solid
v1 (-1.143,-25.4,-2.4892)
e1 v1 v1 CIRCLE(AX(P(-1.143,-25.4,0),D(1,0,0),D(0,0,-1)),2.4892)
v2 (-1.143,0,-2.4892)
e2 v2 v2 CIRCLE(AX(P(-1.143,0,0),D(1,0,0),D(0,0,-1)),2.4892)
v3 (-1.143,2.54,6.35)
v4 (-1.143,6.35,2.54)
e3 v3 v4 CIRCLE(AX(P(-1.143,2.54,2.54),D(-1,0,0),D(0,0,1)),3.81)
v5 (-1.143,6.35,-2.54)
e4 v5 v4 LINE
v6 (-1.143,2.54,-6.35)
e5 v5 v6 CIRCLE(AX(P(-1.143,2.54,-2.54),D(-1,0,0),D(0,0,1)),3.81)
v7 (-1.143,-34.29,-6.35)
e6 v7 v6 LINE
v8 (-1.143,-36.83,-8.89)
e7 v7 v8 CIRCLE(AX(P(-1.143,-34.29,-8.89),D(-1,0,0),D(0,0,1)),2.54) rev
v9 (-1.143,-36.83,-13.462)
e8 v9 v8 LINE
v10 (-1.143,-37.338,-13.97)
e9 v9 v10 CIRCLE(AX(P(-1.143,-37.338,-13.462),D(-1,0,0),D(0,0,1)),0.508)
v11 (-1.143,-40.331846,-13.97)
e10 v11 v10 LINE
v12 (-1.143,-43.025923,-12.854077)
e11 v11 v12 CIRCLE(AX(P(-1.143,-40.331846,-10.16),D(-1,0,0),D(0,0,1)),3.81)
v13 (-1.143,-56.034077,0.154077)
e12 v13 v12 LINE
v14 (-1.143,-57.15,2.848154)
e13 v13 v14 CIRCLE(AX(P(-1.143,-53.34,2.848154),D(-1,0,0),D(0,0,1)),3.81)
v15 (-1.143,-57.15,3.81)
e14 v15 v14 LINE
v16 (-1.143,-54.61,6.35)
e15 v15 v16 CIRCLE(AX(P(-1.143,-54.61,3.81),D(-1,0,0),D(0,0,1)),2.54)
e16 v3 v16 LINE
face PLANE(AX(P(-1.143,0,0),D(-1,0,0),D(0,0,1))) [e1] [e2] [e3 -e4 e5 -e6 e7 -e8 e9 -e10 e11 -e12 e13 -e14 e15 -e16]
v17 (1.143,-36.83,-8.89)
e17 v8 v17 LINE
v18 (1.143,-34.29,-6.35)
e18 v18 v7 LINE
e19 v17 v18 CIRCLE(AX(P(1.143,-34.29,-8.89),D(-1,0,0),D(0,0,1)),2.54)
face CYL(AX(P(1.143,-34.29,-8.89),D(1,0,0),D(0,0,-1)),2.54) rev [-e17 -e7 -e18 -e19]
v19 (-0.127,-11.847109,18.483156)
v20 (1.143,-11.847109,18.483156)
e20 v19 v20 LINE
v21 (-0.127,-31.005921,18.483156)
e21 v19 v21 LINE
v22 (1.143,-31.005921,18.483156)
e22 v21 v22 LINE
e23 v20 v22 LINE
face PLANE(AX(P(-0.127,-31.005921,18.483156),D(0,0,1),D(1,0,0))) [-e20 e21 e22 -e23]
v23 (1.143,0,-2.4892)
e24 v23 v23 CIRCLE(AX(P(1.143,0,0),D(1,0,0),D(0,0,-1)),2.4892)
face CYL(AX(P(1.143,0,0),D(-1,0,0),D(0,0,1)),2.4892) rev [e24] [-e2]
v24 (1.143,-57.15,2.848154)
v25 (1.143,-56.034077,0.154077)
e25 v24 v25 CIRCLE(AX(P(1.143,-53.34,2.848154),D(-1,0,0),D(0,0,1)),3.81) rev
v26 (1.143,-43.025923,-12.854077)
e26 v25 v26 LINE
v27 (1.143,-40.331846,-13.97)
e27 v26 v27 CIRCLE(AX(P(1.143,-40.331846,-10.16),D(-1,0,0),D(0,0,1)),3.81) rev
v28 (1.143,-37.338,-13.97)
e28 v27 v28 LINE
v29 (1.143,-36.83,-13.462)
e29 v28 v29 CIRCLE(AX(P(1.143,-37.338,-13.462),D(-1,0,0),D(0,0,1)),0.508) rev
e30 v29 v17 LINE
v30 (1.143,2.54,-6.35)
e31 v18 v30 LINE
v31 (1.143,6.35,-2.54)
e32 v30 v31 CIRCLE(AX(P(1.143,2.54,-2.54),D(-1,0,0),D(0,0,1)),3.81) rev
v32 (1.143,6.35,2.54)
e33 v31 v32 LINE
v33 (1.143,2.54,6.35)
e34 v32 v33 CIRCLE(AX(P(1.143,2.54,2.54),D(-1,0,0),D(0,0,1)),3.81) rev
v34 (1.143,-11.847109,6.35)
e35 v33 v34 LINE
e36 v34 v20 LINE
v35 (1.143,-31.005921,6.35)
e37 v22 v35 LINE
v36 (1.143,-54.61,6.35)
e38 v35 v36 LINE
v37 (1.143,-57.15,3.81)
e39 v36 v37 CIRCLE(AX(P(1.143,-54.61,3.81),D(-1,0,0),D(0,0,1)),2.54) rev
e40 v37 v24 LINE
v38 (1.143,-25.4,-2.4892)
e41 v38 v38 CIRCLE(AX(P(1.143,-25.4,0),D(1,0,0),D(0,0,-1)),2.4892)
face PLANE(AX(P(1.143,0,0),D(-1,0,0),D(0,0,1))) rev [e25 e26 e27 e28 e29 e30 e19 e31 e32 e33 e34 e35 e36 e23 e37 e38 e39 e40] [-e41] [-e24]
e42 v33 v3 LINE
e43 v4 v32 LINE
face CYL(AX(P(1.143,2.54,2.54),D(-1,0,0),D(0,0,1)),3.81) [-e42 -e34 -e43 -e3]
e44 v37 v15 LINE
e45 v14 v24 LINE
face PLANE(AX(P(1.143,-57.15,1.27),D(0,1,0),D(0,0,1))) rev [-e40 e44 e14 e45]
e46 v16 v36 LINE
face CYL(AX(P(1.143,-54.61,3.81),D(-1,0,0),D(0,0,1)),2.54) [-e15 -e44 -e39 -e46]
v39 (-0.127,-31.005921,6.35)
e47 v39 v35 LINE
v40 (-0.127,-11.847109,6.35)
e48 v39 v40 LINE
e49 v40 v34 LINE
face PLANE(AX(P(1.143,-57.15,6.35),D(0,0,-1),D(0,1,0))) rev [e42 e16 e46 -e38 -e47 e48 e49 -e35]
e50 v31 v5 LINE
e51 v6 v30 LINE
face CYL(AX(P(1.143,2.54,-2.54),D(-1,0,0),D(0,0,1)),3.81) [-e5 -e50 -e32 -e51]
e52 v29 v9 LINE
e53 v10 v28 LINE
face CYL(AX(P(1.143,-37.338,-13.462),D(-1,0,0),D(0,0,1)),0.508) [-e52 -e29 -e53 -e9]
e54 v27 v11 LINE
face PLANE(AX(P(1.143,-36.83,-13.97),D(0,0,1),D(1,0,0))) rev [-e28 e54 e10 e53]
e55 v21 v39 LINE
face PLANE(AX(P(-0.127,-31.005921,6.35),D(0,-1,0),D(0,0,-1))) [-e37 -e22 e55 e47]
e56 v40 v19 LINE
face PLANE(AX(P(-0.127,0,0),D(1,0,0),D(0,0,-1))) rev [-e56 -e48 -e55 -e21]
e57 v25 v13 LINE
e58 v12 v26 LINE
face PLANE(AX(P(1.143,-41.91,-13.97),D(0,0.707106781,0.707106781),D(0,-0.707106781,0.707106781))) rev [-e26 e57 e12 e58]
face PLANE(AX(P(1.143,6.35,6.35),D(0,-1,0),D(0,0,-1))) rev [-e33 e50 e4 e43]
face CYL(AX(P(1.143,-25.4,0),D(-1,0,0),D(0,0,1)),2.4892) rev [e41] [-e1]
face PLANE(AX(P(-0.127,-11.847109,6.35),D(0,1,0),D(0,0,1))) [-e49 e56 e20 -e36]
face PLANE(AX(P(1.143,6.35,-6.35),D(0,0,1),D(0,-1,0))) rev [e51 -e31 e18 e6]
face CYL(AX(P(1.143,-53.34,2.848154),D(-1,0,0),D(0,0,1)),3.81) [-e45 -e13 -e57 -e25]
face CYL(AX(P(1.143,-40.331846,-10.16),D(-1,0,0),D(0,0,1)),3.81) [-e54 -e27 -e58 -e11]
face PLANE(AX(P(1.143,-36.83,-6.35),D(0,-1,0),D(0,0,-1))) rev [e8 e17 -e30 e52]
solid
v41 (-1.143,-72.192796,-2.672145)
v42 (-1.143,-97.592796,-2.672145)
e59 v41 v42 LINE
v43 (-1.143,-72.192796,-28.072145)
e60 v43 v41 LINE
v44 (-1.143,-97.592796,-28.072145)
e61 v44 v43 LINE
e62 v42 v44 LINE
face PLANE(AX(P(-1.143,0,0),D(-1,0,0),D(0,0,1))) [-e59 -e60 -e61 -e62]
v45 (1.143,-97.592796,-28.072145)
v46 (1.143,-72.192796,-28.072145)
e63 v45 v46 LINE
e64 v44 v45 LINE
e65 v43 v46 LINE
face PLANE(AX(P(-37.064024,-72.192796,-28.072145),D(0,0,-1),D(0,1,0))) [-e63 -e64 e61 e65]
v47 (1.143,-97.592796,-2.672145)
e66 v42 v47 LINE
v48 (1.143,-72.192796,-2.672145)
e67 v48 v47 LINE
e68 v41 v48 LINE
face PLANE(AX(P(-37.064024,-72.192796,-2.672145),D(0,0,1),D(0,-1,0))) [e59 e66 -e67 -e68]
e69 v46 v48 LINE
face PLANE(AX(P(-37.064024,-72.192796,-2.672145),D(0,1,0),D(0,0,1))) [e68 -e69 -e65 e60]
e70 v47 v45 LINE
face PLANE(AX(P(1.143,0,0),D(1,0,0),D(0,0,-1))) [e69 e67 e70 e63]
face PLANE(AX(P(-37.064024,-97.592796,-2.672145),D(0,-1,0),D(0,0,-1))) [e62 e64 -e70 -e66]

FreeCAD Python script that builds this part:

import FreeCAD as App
import Part
import Sketcher
Q = App.Units.Quantity


def edges_at(feature, points):
    """Names of the edges that pass closest to the given points."""
    edges = feature.Shape.Edges
    near = lambda p: min(range(len(edges)), key=lambda i: edges[i].distToShape(Part.Vertex(*p))[0])
    return sorted({f"Edge{near(p) + 1}" for p in points})

doc = App.newDocument("Part")
body = doc.addObject("PartDesign::Body", "Body")

sketch1 = doc.addObject("Sketcher::SketchObject", "Sketch")
body.addObject(sketch1)
sketch1.AttachmentSupport = (doc.YZ_Plane, [""])
sketch1.MapMode = "FlatFace"
sketch1.addGeometry(Part.LineSegment(App.Vector(6.35, 6.35, 0), App.Vector(-57.15, 6.35, 0)), False)
sketch1.addGeometry(Part.LineSegment(App.Vector(-57.15, 6.35, 0), App.Vector(-57.15, 1.27, 0)), False)
sketch1.addGeometry(Part.LineSegment(App.Vector(-57.15, 1.27, 0), App.Vector(-41.91, -13.97, 0)), False)
sketch1.addGeometry(Part.LineSegment(App.Vector(-41.91, -13.97, 0), App.Vector(-36.83, -13.97, 0)), False)
sketch1.addGeometry(Part.LineSegment(App.Vector(-36.83, -13.97, 0), App.Vector(-36.83, -6.35, 0)), False)
sketch1.addGeometry(Part.LineSegment(App.Vector(-36.83, -6.35, 0), App.Vector(6.35, -6.35, 0)), False)
sketch1.addGeometry(Part.LineSegment(App.Vector(6.35, -6.35, 0), App.Vector(6.35, 6.35, 0)), False)
sketch1.addGeometry(Part.Circle(App.Vector(-25.4, 0, 0), App.Vector(0, 0, 1), 2.4892), False)
sketch1.addGeometry(Part.Circle(App.Vector(0, 0, 0), App.Vector(0, 0, 1), 2.4892), False)
sketch1.addConstraint(Sketcher.Constraint("Coincident", 0, 2, 1, 1))
sketch1.addConstraint(Sketcher.Constraint("Coincident", 1, 2, 2, 1))
sketch1.addConstraint(Sketcher.Constraint("Coincident", 2, 2, 3, 1))
sketch1.addConstraint(Sketcher.Constraint("Coincident", 3, 2, 4, 1))
sketch1.addConstraint(Sketcher.Constraint("Coincident", 4, 2, 5, 1))
sketch1.addConstraint(Sketcher.Constraint("Coincident", 5, 2, 6, 1))
sketch1.addConstraint(Sketcher.Constraint("Coincident", 6, 2, 0, 1))
sketch1.addConstraint(Sketcher.Constraint("Horizontal", 0))
sketch1.addConstraint(Sketcher.Constraint("Vertical", 1))
sketch1.addConstraint(Sketcher.Constraint("Horizontal", 3))
sketch1.addConstraint(Sketcher.Constraint("Vertical", 4))
sketch1.addConstraint(Sketcher.Constraint("Horizontal", 5))
sketch1.addConstraint(Sketcher.Constraint("Vertical", 6))
sketch1.addConstraint(Sketcher.Constraint("Coincident", 8, 3, -1, 1))
sketch1.addConstraint(Sketcher.Constraint("Equal", 7, 8))
sketch1.addConstraint(Sketcher.Constraint("PointOnObject", 7, 3, -1))
sketch1.addConstraint(Sketcher.Constraint("Equal", 3, 1))
sketch1.addConstraint(Sketcher.Constraint("Diameter", 7, Q("0.196 in")))
sketch1.addConstraint(Sketcher.Constraint("DistanceX", 0, 2, 0, 1, Q("2.5 in")))
sketch1.addConstraint(Sketcher.Constraint("DistanceX", 3, 1, 3, 2, Q("0.2 in")))
sketch1.addConstraint(Sketcher.Constraint("DistanceX", 5, 1, 5, 2, Q("1.7 in")))
sketch1.addConstraint(Sketcher.Constraint("DistanceY", 4, 1, 4, 2, Q("0.3 in")))
sketch1.addConstraint(Sketcher.Constraint("DistanceY", 6, 1, 6, 2, Q("0.5 in")))
sketch1.addConstraint(Sketcher.Constraint("DistanceX", 7, 3, -1, 1, Q("1 in")))
sketch1.addConstraint(Sketcher.Constraint("DistanceX", 0, 2, -1, 1, Q("2.25 in")))
sketch1.addConstraint(Sketcher.Constraint("DistanceY", -1, 1, 0, 2, Q("0.25 in")))
pad1 = doc.addObject("PartDesign::Pad", "Pad")
body.addObject(pad1)
pad1.Profile = sketch1
pad1.Length = Q("0.09 in")
pad1.Midplane = True
doc.recompute()

fillet = doc.addObject("PartDesign::Fillet", "Fillet")
body.addObject(fillet)
fillet.Base = (pad1, edges_at(pad1, [(0, -36.83, -6.35)]))
fillet.Radius = Q("0.1 in")
doc.recompute()

fillet2 = doc.addObject("PartDesign::Fillet", "Fillet001")
body.addObject(fillet2)
fillet2.Base = (fillet, edges_at(fillet, [(0, -36.83, -13.97)]))
fillet2.Radius = Q("0.02 in")
doc.recompute()

fillet3 = doc.addObject("PartDesign::Fillet", "Fillet002")
body.addObject(fillet3)
fillet3.Base = (fillet2, edges_at(fillet2, [
    (0, 6.35, -6.35),
    (0, -41.91, -13.97),
    (0, -57.15, 1.27),
    (0, 6.35, 6.35),
]))
fillet3.Radius = Q("0.15 in")
doc.recompute()

fillet4 = doc.addObject("PartDesign::Fillet", "Fillet003")
body.addObject(fillet4)
fillet4.Base = (fillet3, edges_at(fillet3, [(0, -57.15, 6.35)]))
fillet4.Radius = Q("0.1 in")

sketch2 = doc.addObject("Sketcher::SketchObject", "Sketch001")
body.addObject(sketch2)
sketch2.AttachmentSupport = (doc.YZ_Plane, [""])
sketch2.MapMode = "FlatFace"
sketch2.AttachmentOffset = App.Placement(App.Vector(0, 0, 0.045 * 25.4), App.Rotation())
sketch2.addGeometry(Part.LineSegment(App.Vector(-11.847109, 18.483156, 0), App.Vector(-31.005921, 18.483156, 0)), False)
sketch2.addGeometry(Part.LineSegment(App.Vector(-31.005921, 18.483156, 0), App.Vector(-31.005921, 6.35, 0)), False)
sketch2.addGeometry(Part.LineSegment(App.Vector(-31.005921, 6.35, 0), App.Vector(-11.847109, 6.35, 0)), False)
sketch2.addGeometry(Part.LineSegment(App.Vector(-11.847109, 6.35, 0), App.Vector(-11.847109, 18.483156, 0)), False)
sketch2.addConstraint(Sketcher.Constraint("Coincident", 0, 2, 1, 1))
sketch2.addConstraint(Sketcher.Constraint("Coincident", 1, 2, 2, 1))
sketch2.addConstraint(Sketcher.Constraint("Coincident", 2, 2, 3, 1))
sketch2.addConstraint(Sketcher.Constraint("Coincident", 3, 2, 0, 1))
sketch2.addConstraint(Sketcher.Constraint("Horizontal", 0))
sketch2.addConstraint(Sketcher.Constraint("Vertical", 1))
sketch2.addConstraint(Sketcher.Constraint("Horizontal", 2))
sketch2.addConstraint(Sketcher.Constraint("Vertical", 3))
sketch2.addConstraint(Sketcher.Constraint("DistanceY", -1, 1, 1, 2, Q("0.25 in")))
sketch2.addConstraint(Sketcher.Constraint("DistanceX", 0, 2, 0, 1, Q("19.158812 mm")))
sketch2.addConstraint(Sketcher.Constraint("DistanceY", 1, 2, 1, 1, Q("12.133156 mm")))
sketch2.addConstraint(Sketcher.Constraint("DistanceX", 0, 2, -1, 1, Q("31.005921 mm")))
pad2 = doc.addObject("PartDesign::Pad", "Pad001")
body.addObject(pad2)
pad2.Profile = sketch2
pad2.Length = Q("0.05 in")
pad2.Reversed = True
body2 = doc.addObject("PartDesign::Body", "Body001")

sketch3 = doc.addObject("Sketcher::SketchObject", "Sketch002")
body2.addObject(sketch3)
sketch3.AttachmentSupport = (doc.getObject("YZ_Plane001"), [""])
sketch3.MapMode = "FlatFace"
sketch3.AttachmentOffset = App.Placement(App.Vector(0, 0, 0.045 * 25.4), App.Rotation())
sketch3.addGeometry(Part.LineSegment(App.Vector(-72.192796, -2.672145, 0), App.Vector(-97.592796, -2.672145, 0)), False)
sketch3.addGeometry(Part.LineSegment(App.Vector(-97.592796, -2.672145, 0), App.Vector(-97.592796, -28.072145, 0)), False)
sketch3.addGeometry(Part.LineSegment(App.Vector(-97.592796, -28.072145, 0), App.Vector(-72.192796, -28.072145, 0)), False)
sketch3.addGeometry(Part.LineSegment(App.Vector(-72.192796, -28.072145, 0), App.Vector(-72.192796, -2.672145, 0)), False)
sketch3.addConstraint(Sketcher.Constraint("Coincident", 0, 2, 1, 1))
sketch3.addConstraint(Sketcher.Constraint("Coincident", 1, 2, 2, 1))
sketch3.addConstraint(Sketcher.Constraint("Coincident", 2, 2, 3, 1))
sketch3.addConstraint(Sketcher.Constraint("Coincident", 3, 2, 0, 1))
sketch3.addConstraint(Sketcher.Constraint("Horizontal", 0))
sketch3.addConstraint(Sketcher.Constraint("Vertical", 1))
sketch3.addConstraint(Sketcher.Constraint("Horizontal", 2))
sketch3.addConstraint(Sketcher.Constraint("Vertical", 3))
sketch3.addConstraint(Sketcher.Constraint("Equal", 2, 1))
sketch3.addConstraint(Sketcher.Constraint("DistanceX", 0, 2, 0, 1, Q("1 in")))
sketch3.addConstraint(Sketcher.Constraint("DistanceX", 0, 2, -1, 1, Q("97.592796 mm")))
sketch3.addConstraint(Sketcher.Constraint("DistanceY", 0, 2, -1, 1, Q("2.672145 mm")))
pad3 = doc.addObject("PartDesign::Pad", "Pad002")
body2.addObject(pad3)
pad3.Profile = sketch3
pad3.Length = Q("0.09 in")
pad3.Reversed = True

doc.recompute()
